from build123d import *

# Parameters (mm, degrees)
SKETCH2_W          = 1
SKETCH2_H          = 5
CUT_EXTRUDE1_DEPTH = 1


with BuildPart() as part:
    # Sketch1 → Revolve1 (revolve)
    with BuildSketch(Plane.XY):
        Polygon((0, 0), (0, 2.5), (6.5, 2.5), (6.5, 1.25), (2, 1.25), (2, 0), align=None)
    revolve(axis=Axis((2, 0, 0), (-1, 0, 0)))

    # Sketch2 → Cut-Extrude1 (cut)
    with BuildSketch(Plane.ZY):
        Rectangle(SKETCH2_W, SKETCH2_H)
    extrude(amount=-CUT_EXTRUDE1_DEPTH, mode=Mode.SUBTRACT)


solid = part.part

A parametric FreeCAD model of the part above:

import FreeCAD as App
import Part
import Sketcher

V = App.Vector
Q = App.Units.Quantity

doc = App.newDocument("Part")
params = doc.addObject("Spreadsheet::Sheet", "Params")
for row, (alias, value) in enumerate([
    ("sketch1_width", "2 mm"),
    ("sketch1_width2", "4.5 mm"),
    ("sketch1_height", "2.5 mm"),
    ("revolution_angle", "360 deg"),
    ("sketch2_width", "5 mm"),
    ("sketch2_height", "1 mm"),
    ("pocket1_length", "1 mm"),
], start=1):
    params.set(f"A{row}", alias)
    params.set(f"B{row}", "=" + value)
    params.setAlias(f"B{row}", alias)

body = doc.addObject("PartDesign::Body", "Body")

sketch1 = body.newObject("Sketcher::SketchObject", "Sketch")
sketch1.AttachmentSupport = (doc.getObject("XY_Plane"), [""])
sketch1.MapMode = "FlatFace"
sketch1.addGeometry(Part.LineSegment(V(0, 2.5, 0), V(0, 0, 0)), False)
sketch1.addGeometry(Part.LineSegment(V(0, 0, 0), V(2, 0, 0)), False)
sketch1.addGeometry(Part.LineSegment(V(2, 0, 0), V(2, 1.2, 0)), False)
sketch1.addGeometry(Part.LineSegment(V(2, 1.2, 0), V(6.5, 1.2, 0)), False)
sketch1.addGeometry(Part.LineSegment(V(6.5, 1.2, 0), V(6.5, 2.5, 0)), False)
sketch1.addGeometry(Part.LineSegment(V(6.5, 2.5, 0), V(0, 2.5, 0)), False)
sketch1.addConstraint(Sketcher.Constraint("Coincident", 0, 2, 1, 1))
sketch1.addConstraint(Sketcher.Constraint("Coincident", 1, 2, 2, 1))
sketch1.addConstraint(Sketcher.Constraint("Coincident", 2, 2, 3, 1))
sketch1.addConstraint(Sketcher.Constraint("Coincident", 3, 2, 4, 1))
sketch1.addConstraint(Sketcher.Constraint("Coincident", 4, 2, 5, 1))
sketch1.addConstraint(Sketcher.Constraint("Coincident", 5, 2, 0, 1))
sketch1.addConstraint(Sketcher.Constraint("Vertical", 0))
sketch1.addConstraint(Sketcher.Constraint("Horizontal", 1))
sketch1.addConstraint(Sketcher.Constraint("Vertical", 2))
sketch1.addConstraint(Sketcher.Constraint("Horizontal", 3))
sketch1.addConstraint(Sketcher.Constraint("Vertical", 4))
sketch1.addConstraint(Sketcher.Constraint("Horizontal", 5))
sketch1.addConstraint(Sketcher.Constraint("Coincident", 0, 2, -1, 1))
sketch1.addConstraint(Sketcher.Constraint("Equal", 2, 4))
sketch1.addConstraint(Sketcher.Constraint("DistanceX", 1, 1, 1, 2, Q("2 mm")))
sketch1.addConstraint(Sketcher.Constraint("DistanceX", 3, 1, 3, 2, Q("4.5 mm")))
sketch1.addConstraint(Sketcher.Constraint("DistanceY", 0, 2, 0, 1, Q("2.5 mm")))
sketch1.setExpression("Constraints[14]", "Params.sketch1_width")
sketch1.setExpression("Constraints[15]", "Params.sketch1_width2")
sketch1.setExpression("Constraints[16]", "Params.sketch1_height")
revolution = body.newObject("PartDesign::Revolution", "Revolution")
revolution.Profile = sketch1
revolution.ReferenceAxis = (sketch1, ["H_Axis"])
revolution.setExpression("Angle", "Params.revolution_angle")

sketch2 = body.newObject("Sketcher::SketchObject", "Sketch001")
sketch2.AttachmentSupport = (doc.getObject("YZ_Plane"), [""])
sketch2.MapMode = "FlatFace"
sketch2.addGeometry(Part.LineSegment(V(2.5, -0.5, 0), V(-2.5, -0.5, 0)), False)
sketch2.addGeometry(Part.LineSegment(V(-2.5, -0.5, 0), V(-2.5, 0.5, 0)), False)
sketch2.addGeometry(Part.LineSegment(V(-2.5, 0.5, 0), V(2.5, 0.5, 0)), False)
sketch2.addGeometry(Part.LineSegment(V(2.5, 0.5, 0), V(2.5, -0.5, 0)), False)
sketch2.addConstraint(Sketcher.Constraint("Coincident", 0, 2, 1, 1))
sketch2.addConstraint(Sketcher.Constraint("Coincident", 1, 2, 2, 1))
sketch2.addConstraint(Sketcher.Constraint("Coincident", 2, 2, 3, 1))
sketch2.addConstraint(Sketcher.Constraint("Coincident", 3, 2, 0, 1))
sketch2.addConstraint(Sketcher.Constraint("Horizontal", 0))
sketch2.addConstraint(Sketcher.Constraint("Vertical", 1))
sketch2.addConstraint(Sketcher.Constraint("Horizontal", 2))
sketch2.addConstraint(Sketcher.Constraint("Vertical", 3))
sketch2.addConstraint(Sketcher.Constraint("Symmetric", 0, 2, 2, 2, -1, 1))
sketch2.addConstraint(Sketcher.Constraint("DistanceX", 0, 2, 0, 1, Q("5 mm")))
sketch2.addConstraint(Sketcher.Constraint("DistanceY", 1, 1, 1, 2, Q("1 mm")))
sketch2.setExpression("Constraints[9]", "Params.sketch2_width")
sketch2.setExpression("Constraints[10]", "Params.sketch2_height")
pocket1 = body.newObject("PartDesign::Pocket", "Pocket")
pocket1.Profile = sketch2
pocket1.setExpression("Length", "Params.pocket1_length")
pocket1.Reversed = True

doc.recompute()
